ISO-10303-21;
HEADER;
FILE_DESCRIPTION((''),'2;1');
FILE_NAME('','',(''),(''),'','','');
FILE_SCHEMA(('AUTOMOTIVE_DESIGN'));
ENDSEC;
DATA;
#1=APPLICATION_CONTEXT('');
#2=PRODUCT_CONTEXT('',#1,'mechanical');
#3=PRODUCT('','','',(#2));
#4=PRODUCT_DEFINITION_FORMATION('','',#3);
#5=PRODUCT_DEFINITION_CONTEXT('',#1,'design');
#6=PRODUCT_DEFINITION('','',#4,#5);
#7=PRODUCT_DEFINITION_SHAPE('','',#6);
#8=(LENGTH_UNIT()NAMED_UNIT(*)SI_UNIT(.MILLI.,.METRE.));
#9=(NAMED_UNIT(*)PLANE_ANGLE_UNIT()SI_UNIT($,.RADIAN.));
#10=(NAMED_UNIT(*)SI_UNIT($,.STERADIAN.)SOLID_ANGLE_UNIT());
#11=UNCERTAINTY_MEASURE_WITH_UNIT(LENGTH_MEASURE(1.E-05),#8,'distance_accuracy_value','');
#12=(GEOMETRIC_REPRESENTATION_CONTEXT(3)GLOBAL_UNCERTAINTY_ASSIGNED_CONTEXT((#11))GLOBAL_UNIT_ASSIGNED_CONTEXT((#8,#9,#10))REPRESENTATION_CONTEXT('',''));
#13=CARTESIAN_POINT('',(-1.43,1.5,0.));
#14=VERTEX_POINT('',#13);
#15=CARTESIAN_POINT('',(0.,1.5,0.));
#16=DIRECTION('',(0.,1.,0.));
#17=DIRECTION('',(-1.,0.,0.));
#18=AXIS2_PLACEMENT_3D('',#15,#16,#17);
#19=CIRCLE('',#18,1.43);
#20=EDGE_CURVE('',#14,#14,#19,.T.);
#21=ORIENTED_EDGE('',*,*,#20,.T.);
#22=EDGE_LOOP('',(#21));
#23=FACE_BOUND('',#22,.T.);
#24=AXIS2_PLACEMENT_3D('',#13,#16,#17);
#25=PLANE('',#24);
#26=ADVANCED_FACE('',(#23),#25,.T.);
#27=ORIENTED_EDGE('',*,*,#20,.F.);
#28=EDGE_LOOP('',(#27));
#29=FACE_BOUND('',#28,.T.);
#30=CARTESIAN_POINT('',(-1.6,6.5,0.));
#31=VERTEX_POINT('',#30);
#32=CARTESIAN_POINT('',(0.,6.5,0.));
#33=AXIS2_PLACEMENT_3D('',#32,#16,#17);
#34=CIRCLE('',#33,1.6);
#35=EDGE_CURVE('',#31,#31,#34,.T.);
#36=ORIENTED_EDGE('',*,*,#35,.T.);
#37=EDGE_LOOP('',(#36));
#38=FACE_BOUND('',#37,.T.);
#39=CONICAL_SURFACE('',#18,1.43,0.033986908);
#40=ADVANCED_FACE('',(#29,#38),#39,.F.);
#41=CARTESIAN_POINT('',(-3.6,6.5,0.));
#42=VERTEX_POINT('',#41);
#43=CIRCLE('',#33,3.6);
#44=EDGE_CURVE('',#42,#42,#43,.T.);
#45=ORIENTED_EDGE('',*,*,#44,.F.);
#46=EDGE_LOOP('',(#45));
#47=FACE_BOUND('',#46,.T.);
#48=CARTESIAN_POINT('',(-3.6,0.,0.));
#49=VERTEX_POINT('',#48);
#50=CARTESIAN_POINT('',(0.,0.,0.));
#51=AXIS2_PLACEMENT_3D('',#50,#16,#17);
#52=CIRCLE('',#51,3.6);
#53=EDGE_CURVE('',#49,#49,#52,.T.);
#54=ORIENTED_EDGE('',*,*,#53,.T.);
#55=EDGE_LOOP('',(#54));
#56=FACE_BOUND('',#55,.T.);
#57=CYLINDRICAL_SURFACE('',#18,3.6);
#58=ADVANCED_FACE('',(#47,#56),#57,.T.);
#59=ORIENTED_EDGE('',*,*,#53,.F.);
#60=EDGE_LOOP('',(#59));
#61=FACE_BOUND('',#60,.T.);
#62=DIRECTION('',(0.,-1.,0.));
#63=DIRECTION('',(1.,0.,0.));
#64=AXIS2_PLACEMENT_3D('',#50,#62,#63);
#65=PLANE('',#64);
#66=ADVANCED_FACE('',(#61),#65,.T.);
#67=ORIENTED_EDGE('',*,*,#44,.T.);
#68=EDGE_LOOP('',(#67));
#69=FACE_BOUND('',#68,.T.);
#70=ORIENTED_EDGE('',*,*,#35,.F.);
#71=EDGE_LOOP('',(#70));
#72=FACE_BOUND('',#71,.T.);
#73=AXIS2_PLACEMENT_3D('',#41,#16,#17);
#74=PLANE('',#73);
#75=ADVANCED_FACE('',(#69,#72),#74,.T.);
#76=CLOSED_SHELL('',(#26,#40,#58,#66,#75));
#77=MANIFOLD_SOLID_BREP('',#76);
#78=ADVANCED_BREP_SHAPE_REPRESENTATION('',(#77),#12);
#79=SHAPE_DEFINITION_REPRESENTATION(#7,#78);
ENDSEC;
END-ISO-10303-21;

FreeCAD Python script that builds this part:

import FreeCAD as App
import Part
import Sketcher

V = App.Vector

doc = App.newDocument("Part")
body = doc.addObject("PartDesign::Body", "Body")

# Sketch on XY plane
sketch1 = doc.addObject("Sketcher::SketchObject", "Sketch")
body.addObject(sketch1)
sketch1.AttachmentSupport = (doc.XY_Plane, [""])
sketch1.MapMode = "FlatFace"
sketch1.addGeometry(Part.LineSegment(V(-3.6, 0, 0), V(0, 0, 0)), False)
sketch1.addGeometry(Part.LineSegment(V(0, 0, 0), V(0, 1.5, 0)), False)
sketch1.addGeometry(Part.LineSegment(V(0, 1.5, 0), V(-1.4, 1.5, 0)), False)
sketch1.addGeometry(Part.LineSegment(V(-1.4, 1.5, 0), V(-1.6, 6.5, 0)), False)
sketch1.addGeometry(Part.LineSegment(V(-1.6, 6.5, 0), V(-3.6, 6.5, 0)), False)
sketch1.addGeometry(Part.LineSegment(V(-3.6, 6.5, 0), V(-3.6, 0, 0)), False)
sketch1.addConstraint(Sketcher.Constraint("Coincident", 0, 2, 1, 1))
sketch1.addConstraint(Sketcher.Constraint("Coincident", 1, 2, 2, 1))
sketch1.addConstraint(Sketcher.Constraint("Coincident", 2, 2, 3, 1))
sketch1.addConstraint(Sketcher.Constraint("Coincident", 3, 2, 4, 1))
sketch1.addConstraint(Sketcher.Constraint("Coincident", 4, 2, 5, 1))
sketch1.addConstraint(Sketcher.Constraint("Coincident", 5, 2, 0, 1))
sketch1.addConstraint(Sketcher.Constraint("Horizontal", 0))
sketch1.addConstraint(Sketcher.Constraint("Vertical", 1))
sketch1.addConstraint(Sketcher.Constraint("Horizontal", 2))
sketch1.addConstraint(Sketcher.Constraint("Horizontal", 4))
sketch1.addConstraint(Sketcher.Constraint("Vertical", 5))
sketch1.addConstraint(Sketcher.Constraint("Coincident", 0, 2, -1, 1))
sketch1.addConstraint(Sketcher.Constraint("DistanceX", 4, 2, 4, 1, 2.0))
sketch1.addConstraint(Sketcher.Constraint("DistanceX", 0, 1, 0, 2, 3.6))
sketch1.addConstraint(Sketcher.Constraint("DistanceY", 1, 1, 1, 2, 1.5))
sketch1.addConstraint(Sketcher.Constraint("DistanceY", 5, 2, 5, 1, 6.5))
sketch1.addConstraint(Sketcher.Constraint("DistanceX", 2, 2, 2, 1, 1.43))
revolution = doc.addObject("PartDesign::Revolution", "Revolution")
body.addObject(revolution)
revolution.Profile = sketch1
revolution.ReferenceAxis = (sketch1, ["V_Axis"])
revolution.Angle = 360

doc.recompute()
